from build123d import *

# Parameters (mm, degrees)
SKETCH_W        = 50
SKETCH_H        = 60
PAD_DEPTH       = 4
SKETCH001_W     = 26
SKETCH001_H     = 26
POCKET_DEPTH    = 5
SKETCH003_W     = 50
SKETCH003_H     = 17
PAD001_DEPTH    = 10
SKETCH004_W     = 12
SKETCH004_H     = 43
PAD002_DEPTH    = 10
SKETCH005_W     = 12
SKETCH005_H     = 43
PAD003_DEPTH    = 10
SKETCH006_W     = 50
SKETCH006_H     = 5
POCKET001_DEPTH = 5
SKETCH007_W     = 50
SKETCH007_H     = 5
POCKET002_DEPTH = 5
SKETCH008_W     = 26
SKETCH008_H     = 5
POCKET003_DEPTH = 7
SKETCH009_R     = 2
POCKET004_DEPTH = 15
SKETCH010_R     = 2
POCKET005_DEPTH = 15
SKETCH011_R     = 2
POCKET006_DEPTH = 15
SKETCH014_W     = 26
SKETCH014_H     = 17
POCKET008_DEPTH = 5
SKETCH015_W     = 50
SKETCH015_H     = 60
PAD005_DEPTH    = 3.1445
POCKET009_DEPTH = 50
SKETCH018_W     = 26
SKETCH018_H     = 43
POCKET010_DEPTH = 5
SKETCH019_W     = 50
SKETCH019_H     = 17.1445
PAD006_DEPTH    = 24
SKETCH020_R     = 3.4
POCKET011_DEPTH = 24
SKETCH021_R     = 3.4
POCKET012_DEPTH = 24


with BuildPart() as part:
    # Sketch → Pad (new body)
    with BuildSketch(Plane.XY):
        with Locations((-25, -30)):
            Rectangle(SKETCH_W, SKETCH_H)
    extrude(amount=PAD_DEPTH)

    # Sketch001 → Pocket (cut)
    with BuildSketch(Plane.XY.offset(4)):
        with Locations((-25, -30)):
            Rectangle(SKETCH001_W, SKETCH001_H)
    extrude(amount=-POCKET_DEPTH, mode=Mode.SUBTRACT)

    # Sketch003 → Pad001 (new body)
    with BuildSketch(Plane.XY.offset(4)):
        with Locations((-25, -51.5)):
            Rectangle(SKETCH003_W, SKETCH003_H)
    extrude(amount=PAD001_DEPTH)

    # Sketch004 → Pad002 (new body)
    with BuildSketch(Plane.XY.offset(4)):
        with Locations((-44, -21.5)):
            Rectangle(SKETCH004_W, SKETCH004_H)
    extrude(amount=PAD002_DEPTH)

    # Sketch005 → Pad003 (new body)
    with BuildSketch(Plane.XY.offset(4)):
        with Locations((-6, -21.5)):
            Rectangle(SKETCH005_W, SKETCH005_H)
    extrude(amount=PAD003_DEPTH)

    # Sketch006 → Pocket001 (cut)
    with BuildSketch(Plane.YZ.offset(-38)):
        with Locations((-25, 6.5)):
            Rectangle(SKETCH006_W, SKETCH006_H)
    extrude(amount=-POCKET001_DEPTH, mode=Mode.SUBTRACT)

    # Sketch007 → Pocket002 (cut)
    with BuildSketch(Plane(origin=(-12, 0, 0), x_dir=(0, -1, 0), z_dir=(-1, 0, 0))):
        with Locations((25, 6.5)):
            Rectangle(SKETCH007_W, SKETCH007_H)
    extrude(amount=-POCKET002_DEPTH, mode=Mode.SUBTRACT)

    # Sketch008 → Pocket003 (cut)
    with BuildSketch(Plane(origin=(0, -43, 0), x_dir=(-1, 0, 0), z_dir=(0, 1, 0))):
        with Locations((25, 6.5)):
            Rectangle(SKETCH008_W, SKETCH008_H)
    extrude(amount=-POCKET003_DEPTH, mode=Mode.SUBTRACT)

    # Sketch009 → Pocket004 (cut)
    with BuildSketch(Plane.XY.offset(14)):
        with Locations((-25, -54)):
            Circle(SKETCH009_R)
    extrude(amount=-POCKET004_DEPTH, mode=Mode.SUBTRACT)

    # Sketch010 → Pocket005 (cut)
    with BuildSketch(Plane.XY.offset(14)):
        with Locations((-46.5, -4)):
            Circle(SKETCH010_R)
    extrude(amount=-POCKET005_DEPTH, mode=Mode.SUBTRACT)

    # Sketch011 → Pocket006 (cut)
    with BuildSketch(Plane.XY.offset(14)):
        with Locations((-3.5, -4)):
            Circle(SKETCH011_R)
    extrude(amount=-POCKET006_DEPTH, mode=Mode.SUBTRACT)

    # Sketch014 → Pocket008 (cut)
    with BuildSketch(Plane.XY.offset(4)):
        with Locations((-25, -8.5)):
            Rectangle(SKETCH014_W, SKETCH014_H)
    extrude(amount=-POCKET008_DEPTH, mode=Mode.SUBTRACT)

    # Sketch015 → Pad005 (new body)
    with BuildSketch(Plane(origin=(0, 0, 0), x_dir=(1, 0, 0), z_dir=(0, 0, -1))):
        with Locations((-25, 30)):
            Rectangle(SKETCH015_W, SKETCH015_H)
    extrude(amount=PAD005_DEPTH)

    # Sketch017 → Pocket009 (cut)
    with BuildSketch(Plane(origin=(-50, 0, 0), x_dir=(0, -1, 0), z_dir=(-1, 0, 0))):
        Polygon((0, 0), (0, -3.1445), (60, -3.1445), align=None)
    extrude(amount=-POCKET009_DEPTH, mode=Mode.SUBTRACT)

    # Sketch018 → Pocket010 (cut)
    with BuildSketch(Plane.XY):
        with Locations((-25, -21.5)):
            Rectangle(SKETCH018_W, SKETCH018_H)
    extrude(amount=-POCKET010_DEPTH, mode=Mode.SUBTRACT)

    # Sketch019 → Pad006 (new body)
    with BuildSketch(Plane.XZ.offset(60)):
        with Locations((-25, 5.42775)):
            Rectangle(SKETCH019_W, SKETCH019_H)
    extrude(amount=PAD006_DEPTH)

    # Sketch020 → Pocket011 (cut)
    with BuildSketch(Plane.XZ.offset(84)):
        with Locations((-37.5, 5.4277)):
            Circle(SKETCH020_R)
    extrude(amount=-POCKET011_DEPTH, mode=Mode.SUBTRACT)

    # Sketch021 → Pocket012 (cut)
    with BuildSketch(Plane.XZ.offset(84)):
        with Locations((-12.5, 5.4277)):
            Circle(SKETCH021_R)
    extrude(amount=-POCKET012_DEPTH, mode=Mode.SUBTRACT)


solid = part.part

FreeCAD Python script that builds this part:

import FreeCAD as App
import Part
import Sketcher

V = App.Vector

doc = App.newDocument("Part")
body = doc.addObject("PartDesign::Body", "Body")

sketch1 = body.newObject("Sketcher::SketchObject", "Sketch")
sketch1.AttachmentSupport = (doc.getObject("XY_Plane"), [""])
sketch1.MapMode = "FlatFace"
sketch1.addGeometry(Part.LineSegment(V(-50, 0, 0), V(-50, -60, 0)), False)
sketch1.addGeometry(Part.LineSegment(V(-50, -60, 0), V(0, -60, 0)), False)
sketch1.addGeometry(Part.LineSegment(V(0, -60, 0), V(0, 0, 0)), False)
sketch1.addGeometry(Part.LineSegment(V(0, 0, 0), V(-50, 0, 0)), False)
sketch1.addConstraint(Sketcher.Constraint("Coincident", 0, 2, 1, 1))
sketch1.addConstraint(Sketcher.Constraint("Coincident", 1, 2, 2, 1))
sketch1.addConstraint(Sketcher.Constraint("Coincident", 2, 2, 3, 1))
sketch1.addConstraint(Sketcher.Constraint("Coincident", 3, 2, 0, 1))
sketch1.addConstraint(Sketcher.Constraint("Vertical", 0))
sketch1.addConstraint(Sketcher.Constraint("Horizontal", 1))
sketch1.addConstraint(Sketcher.Constraint("Vertical", 2))
sketch1.addConstraint(Sketcher.Constraint("Horizontal", 3))
sketch1.addConstraint(Sketcher.Constraint("Coincident", 2, 2, -1, 1))
sketch1.addConstraint(Sketcher.Constraint("DistanceX", 1, 1, 1, 2, 50.0))
sketch1.addConstraint(Sketcher.Constraint("DistanceY", 0, 2, 0, 1, 60.0))
pad1 = body.newObject("PartDesign::Pad", "Pad")
pad1.Profile = sketch1
pad1.Length = 4

sketch2 = body.newObject("Sketcher::SketchObject", "Sketch001")
sketch2.AttachmentSupport = (doc.getObject("XY_Plane"), [""])
sketch2.MapMode = "FlatFace"
sketch2.AttachmentOffset = App.Placement(V(0, 0, 4), App.Rotation())
sketch2.addGeometry(Part.LineSegment(V(-38, -17, 0), V(-38, -43, 0)), False)
sketch2.addGeometry(Part.LineSegment(V(-38, -43, 0), V(-12, -43, 0)), False)
sketch2.addGeometry(Part.LineSegment(V(-12, -43, 0), V(-12, -17, 0)), False)
sketch2.addGeometry(Part.LineSegment(V(-12, -17, 0), V(-38, -17, 0)), False)
sketch2.addConstraint(Sketcher.Constraint("Coincident", 0, 2, 1, 1))
sketch2.addConstraint(Sketcher.Constraint("Coincident", 1, 2, 2, 1))
sketch2.addConstraint(Sketcher.Constraint("Coincident", 2, 2, 3, 1))
sketch2.addConstraint(Sketcher.Constraint("Coincident", 3, 2, 0, 1))
sketch2.addConstraint(Sketcher.Constraint("Vertical", 0))
sketch2.addConstraint(Sketcher.Constraint("Horizontal", 1))
sketch2.addConstraint(Sketcher.Constraint("Vertical", 2))
sketch2.addConstraint(Sketcher.Constraint("Horizontal", 3))
sketch2.addConstraint(Sketcher.Constraint("Equal", 3, 0))
sketch2.addConstraint(Sketcher.Constraint("DistanceX", 1, 1, 1, 2, 26.0))
sketch2.addConstraint(Sketcher.Constraint("DistanceX", 0, 2, -1, 1, 38.0))
sketch2.addConstraint(Sketcher.Constraint("DistanceY", 0, 2, -1, 1, 43.0))
pocket1 = body.newObject("PartDesign::Pocket", "Pocket")
pocket1.Profile = sketch2
pocket1.Length = 5

sketch3 = body.newObject("Sketcher::SketchObject", "Sketch002")
sketch3.AttachmentSupport = (doc.getObject("XY_Plane"), [""])
sketch3.MapMode = "FlatFace"
sketch3.AttachmentOffset = App.Placement(V(0, 0, 4), App.Rotation())
sketch3.addGeometry(Part.LineSegment(V(-50, -43, 0), V(-50, -60, 0)), False)
sketch3.addGeometry(Part.LineSegment(V(-50, -60, 0), V(0, -60, 0)), False)
sketch3.addGeometry(Part.LineSegment(V(0, -60, 0), V(0, -43, 0)), False)
sketch3.addGeometry(Part.LineSegment(V(0, -43, 0), V(-50, -43, 0)), False)
sketch3.addConstraint(Sketcher.Constraint("Coincident", 0, 2, 1, 1))
sketch3.addConstraint(Sketcher.Constraint("Coincident", 1, 2, 2, 1))
sketch3.addConstraint(Sketcher.Constraint("Coincident", 2, 2, 3, 1))
sketch3.addConstraint(Sketcher.Constraint("Coincident", 3, 2, 0, 1))
sketch3.addConstraint(Sketcher.Constraint("Vertical", 0))
sketch3.addConstraint(Sketcher.Constraint("Horizontal", 1))
sketch3.addConstraint(Sketcher.Constraint("Vertical", 2))
sketch3.addConstraint(Sketcher.Constraint("Horizontal", 3))
sketch3.addConstraint(Sketcher.Constraint("PointOnObject", 1, 2, -2))
sketch3.addConstraint(Sketcher.Constraint("DistanceX", 1, 1, 1, 2, 50.0))
sketch3.addConstraint(Sketcher.Constraint("DistanceY", 0, 2, 0, 1, 17.0))
sketch3.addConstraint(Sketcher.Constraint("DistanceY", 0, 2, -1, 1, 60.0))
pad2 = body.newObject("PartDesign::Pad", "Pad001")
pad2.Profile = sketch3
pad2.Length = 10

sketch4 = body.newObject("Sketcher::SketchObject", "Sketch003")
sketch4.AttachmentSupport = (doc.getObject("XY_Plane"), [""])
sketch4.MapMode = "FlatFace"
sketch4.AttachmentOffset = App.Placement(V(0, 0, 4), App.Rotation())
sketch4.addGeometry(Part.LineSegment(V(-50, 0, 0), V(-50, -43, 0)), False)
sketch4.addGeometry(Part.LineSegment(V(-50, -43, 0), V(-38, -43, 0)), False)
sketch4.addGeometry(Part.LineSegment(V(-38, -43, 0), V(-38, 0, 0)), False)
sketch4.addGeometry(Part.LineSegment(V(-38, 0, 0), V(-50, 0, 0)), False)
sketch4.addConstraint(Sketcher.Constraint("Coincident", 0, 2, 1, 1))
sketch4.addConstraint(Sketcher.Constraint("Coincident", 1, 2, 2, 1))
sketch4.addConstraint(Sketcher.Constraint("Coincident", 2, 2, 3, 1))
sketch4.addConstraint(Sketcher.Constraint("Coincident", 3, 2, 0, 1))
sketch4.addConstraint(Sketcher.Constraint("Vertical", 0))
sketch4.addConstraint(Sketcher.Constraint("Horizontal", 1))
sketch4.addConstraint(Sketcher.Constraint("Vertical", 2))
sketch4.addConstraint(Sketcher.Constraint("Horizontal", 3))
sketch4.addConstraint(Sketcher.Constraint("PointOnObject", 2, 2, -1))
sketch4.addConstraint(Sketcher.Constraint("DistanceX", 1, 1, 1, 2, 12.0))
sketch4.addConstraint(Sketcher.Constraint("DistanceY", 0, 2, 0, 1, 43.0))
sketch4.addConstraint(Sketcher.Constraint("DistanceX", 0, 2, -1, 1, 50.0))
pad3 = body.newObject("PartDesign::Pad", "Pad002")
pad3.Profile = sketch4
pad3.Length = 10

sketch5 = body.newObject("Sketcher::SketchObject", "Sketch004")
sketch5.AttachmentSupport = (doc.getObject("XY_Plane"), [""])
sketch5.MapMode = "FlatFace"
sketch5.AttachmentOffset = App.Placement(V(0, 0, 4), App.Rotation())
sketch5.addGeometry(Part.LineSegment(V(-12, 0, 0), V(-12, -43, 0)), False)
sketch5.addGeometry(Part.LineSegment(V(-12, -43, 0), V(0, -43, 0)), False)
sketch5.addGeometry(Part.LineSegment(V(0, -43, 0), V(0, 0, 0)), False)
sketch5.addGeometry(Part.LineSegment(V(0, 0, 0), V(-12, 0, 0)), False)
sketch5.addConstraint(Sketcher.Constraint("Coincident", 0, 2, 1, 1))
sketch5.addConstraint(Sketcher.Constraint("Coincident", 1, 2, 2, 1))
sketch5.addConstraint(Sketcher.Constraint("Coincident", 2, 2, 3, 1))
sketch5.addConstraint(Sketcher.Constraint("Coincident", 3, 2, 0, 1))
sketch5.addConstraint(Sketcher.Constraint("Vertical", 0))
sketch5.addConstraint(Sketcher.Constraint("Horizontal", 1))
sketch5.addConstraint(Sketcher.Constraint("Vertical", 2))
sketch5.addConstraint(Sketcher.Constraint("Horizontal", 3))
sketch5.addConstraint(Sketcher.Constraint("Coincident", 2, 2, -1, 1))
sketch5.addConstraint(Sketcher.Constraint("DistanceX", 1, 1, 1, 2, 12.0))
sketch5.addConstraint(Sketcher.Constraint("DistanceY", 0, 2, 0, 1, 43.0))
pad4 = body.newObject("PartDesign::Pad", "Pad003")
pad4.Profile = sketch5
pad4.Length = 10

sketch6 = body.newObject("Sketcher::SketchObject", "Sketch005")
sketch6.AttachmentSupport = (doc.getObject("YZ_Plane"), [""])
sketch6.MapMode = "FlatFace"
sketch6.AttachmentOffset = App.Placement(V(0, 0, -38), App.Rotation())
sketch6.addGeometry(Part.LineSegment(V(-50, 9, 0), V(-50, 4, 0)), False)
sketch6.addGeometry(Part.LineSegment(V(-50, 4, 0), V(0, 4, 0)), False)
sketch6.addGeometry(Part.LineSegment(V(0, 4, 0), V(0, 9, 0)), False)
sketch6.addGeometry(Part.LineSegment(V(0, 9, 0), V(-50, 9, 0)), False)
sketch6.addConstraint(Sketcher.Constraint("Coincident", 0, 2, 1, 1))
sketch6.addConstraint(Sketcher.Constraint("Coincident", 1, 2, 2, 1))
sketch6.addConstraint(Sketcher.Constraint("Coincident", 2, 2, 3, 1))
sketch6.addConstraint(Sketcher.Constraint("Coincident", 3, 2, 0, 1))
sketch6.addConstraint(Sketcher.Constraint("Vertical", 0))
sketch6.addConstraint(Sketcher.Constraint("Horizontal", 1))
sketch6.addConstraint(Sketcher.Constraint("Vertical", 2))
sketch6.addConstraint(Sketcher.Constraint("Horizontal", 3))
sketch6.addConstraint(Sketcher.Constraint("PointOnObject", 1, 2, -2))
sketch6.addConstraint(Sketcher.Constraint("DistanceX", 1, 1, 1, 2, 50.0))
sketch6.addConstraint(Sketcher.Constraint("DistanceY", 0, 2, 0, 1, 5.0))
sketch6.addConstraint(Sketcher.Constraint("DistanceY", -1, 1, 0, 2, 4.0))
pocket2 = body.newObject("PartDesign::Pocket", "Pocket001")
pocket2.Profile = sketch6
pocket2.Length = 5

sketch7 = body.newObject("Sketcher::SketchObject", "Sketch006")
sketch7.AttachmentSupport = (doc.getObject("YZ_Plane"), [""])
sketch7.MapMode = "FlatFace"
sketch7.AttachmentOffset = App.Placement(V(0, 0, -12), App.Rotation())
sketch7.addGeometry(Part.LineSegment(V(0, 9, 0), V(0, 4, 0)), False)
sketch7.addGeometry(Part.LineSegment(V(0, 4, 0), V(-50, 4, 0)), False)
sketch7.addGeometry(Part.LineSegment(V(-50, 4, 0), V(-50, 9, 0)), False)
sketch7.addGeometry(Part.LineSegment(V(-50, 9, 0), V(0, 9, 0)), False)
sketch7.addConstraint(Sketcher.Constraint("Coincident", 0, 2, 1, 1))
sketch7.addConstraint(Sketcher.Constraint("Coincident", 1, 2, 2, 1))
sketch7.addConstraint(Sketcher.Constraint("Coincident", 2, 2, 3, 1))
sketch7.addConstraint(Sketcher.Constraint("Coincident", 3, 2, 0, 1))
sketch7.addConstraint(Sketcher.Constraint("Vertical", 0))
sketch7.addConstraint(Sketcher.Constraint("Horizontal", 1))
sketch7.addConstraint(Sketcher.Constraint("Vertical", 2))
sketch7.addConstraint(Sketcher.Constraint("Horizontal", 3))
sketch7.addConstraint(Sketcher.Constraint("PointOnObject", 0, 2, -2))
sketch7.addConstraint(Sketcher.Constraint("DistanceX", 1, 2, 1, 1, 50.0))
sketch7.addConstraint(Sketcher.Constraint("DistanceY", 0, 2, 0, 1, 5.0))
sketch7.addConstraint(Sketcher.Constraint("DistanceY", -1, 1, 0, 2, 4.0))
pocket3 = body.newObject("PartDesign::Pocket", "Pocket002")
pocket3.Profile = sketch7
pocket3.Length = 5
pocket3.Reversed = True

sketch8 = body.newObject("Sketcher::SketchObject", "Sketch007")
sketch8.AttachmentSupport = (doc.getObject("XZ_Plane"), [""])
sketch8.MapMode = "FlatFace"
sketch8.AttachmentOffset = App.Placement(V(0, 0, 43), App.Rotation())
sketch8.addGeometry(Part.LineSegment(V(-12, 9, 0), V(-12, 4, 0)), False)
sketch8.addGeometry(Part.LineSegment(V(-12, 4, 0), V(-38, 4, 0)), False)
sketch8.addGeometry(Part.LineSegment(V(-38, 4, 0), V(-38, 9, 0)), False)
sketch8.addGeometry(Part.LineSegment(V(-38, 9, 0), V(-12, 9, 0)), False)
sketch8.addConstraint(Sketcher.Constraint("Coincident", 0, 2, 1, 1))
sketch8.addConstraint(Sketcher.Constraint("Coincident", 1, 2, 2, 1))
sketch8.addConstraint(Sketcher.Constraint("Coincident", 2, 2, 3, 1))
sketch8.addConstraint(Sketcher.Constraint("Coincident", 3, 2, 0, 1))
sketch8.addConstraint(Sketcher.Constraint("Vertical", 0))
sketch8.addConstraint(Sketcher.Constraint("Horizontal", 1))
sketch8.addConstraint(Sketcher.Constraint("Vertical", 2))
sketch8.addConstraint(Sketcher.Constraint("Horizontal", 3))
sketch8.addConstraint(Sketcher.Constraint("DistanceX", 1, 2, 1, 1, 26.0))
sketch8.addConstraint(Sketcher.Constraint("DistanceY", 0, 2, 0, 1, 5.0))
sketch8.addConstraint(Sketcher.Constraint("DistanceX", 0, 2, -1, 1, 12.0))
sketch8.addConstraint(Sketcher.Constraint("DistanceY", -1, 1, 0, 2, 4.0))
pocket4 = body.newObject("PartDesign::Pocket", "Pocket003")
pocket4.Profile = sketch8
pocket4.Length = 7
pocket4.Reversed = True

sketch9 = body.newObject("Sketcher::SketchObject", "Sketch008")
sketch9.AttachmentSupport = (doc.getObject("XY_Plane"), [""])
sketch9.MapMode = "FlatFace"
sketch9.AttachmentOffset = App.Placement(V(0, 0, 14), App.Rotation())
sketch9.addGeometry(Part.Circle(V(-25, -54, 0), V(0, 0, 1), 2), False)
sketch9.addConstraint(Sketcher.Constraint("Diameter", 0, 4.0))
sketch9.addConstraint(Sketcher.Constraint("DistanceX", 0, 3, -1, 1, 25.0))
sketch9.addConstraint(Sketcher.Constraint("DistanceY", 0, 3, -1, 1, 54.0))
pocket5 = body.newObject("PartDesign::Pocket", "Pocket004")
pocket5.Profile = sketch9
pocket5.Length = 15

sketch10 = body.newObject("Sketcher::SketchObject", "Sketch009")
sketch10.AttachmentSupport = (doc.getObject("XY_Plane"), [""])
sketch10.MapMode = "FlatFace"
sketch10.AttachmentOffset = App.Placement(V(0, 0, 14), App.Rotation())
sketch10.addGeometry(Part.Circle(V(-46.5, -4, 0), V(0, 0, 1), 2), False)
sketch10.addConstraint(Sketcher.Constraint("Diameter", 0, 4.0))
sketch10.addConstraint(Sketcher.Constraint("DistanceY", 0, 3, -1, 1, 4.0))
sketch10.addConstraint(Sketcher.Constraint("DistanceX", 0, 3, -1, 1, 46.5))
pocket6 = body.newObject("PartDesign::Pocket", "Pocket005")
pocket6.Profile = sketch10
pocket6.Length = 15

sketch11 = body.newObject("Sketcher::SketchObject", "Sketch010")
sketch11.AttachmentSupport = (doc.getObject("XY_Plane"), [""])
sketch11.MapMode = "FlatFace"
sketch11.AttachmentOffset = App.Placement(V(0, 0, 14), App.Rotation())
sketch11.addGeometry(Part.Circle(V(-3.5, -4, 0), V(0, 0, 1), 2), False)
sketch11.addConstraint(Sketcher.Constraint("Diameter", 0, 4.0))
sketch11.addConstraint(Sketcher.Constraint("DistanceY", 0, 3, -1, 1, 4.0))
sketch11.addConstraint(Sketcher.Constraint("DistanceX", 0, 3, -1, 1, 3.5))
pocket7 = body.newObject("PartDesign::Pocket", "Pocket006")
pocket7.Profile = sketch11
pocket7.Length = 15

sketch12 = body.newObject("Sketcher::SketchObject", "Sketch011")
sketch12.AttachmentSupport = (doc.getObject("XY_Plane"), [""])
sketch12.MapMode = "FlatFace"
sketch12.AttachmentOffset = App.Placement(V(0, 0, 4), App.Rotation())
sketch12.addGeometry(Part.LineSegment(V(-38, 0, 0), V(-38, -17, 0)), False)
sketch12.addGeometry(Part.LineSegment(V(-38, -17, 0), V(-12, -17, 0)), False)
sketch12.addGeometry(Part.LineSegment(V(-12, -17, 0), V(-12, 0, 0)), False)
sketch12.addGeometry(Part.LineSegment(V(-12, 0, 0), V(-38, 0, 0)), False)
sketch12.addConstraint(Sketcher.Constraint("Coincident", 0, 2, 1, 1))
sketch12.addConstraint(Sketcher.Constraint("Coincident", 1, 2, 2, 1))
sketch12.addConstraint(Sketcher.Constraint("Coincident", 2, 2, 3, 1))
sketch12.addConstraint(Sketcher.Constraint("Coincident", 3, 2, 0, 1))
sketch12.addConstraint(Sketcher.Constraint("Vertical", 0))
sketch12.addConstraint(Sketcher.Constraint("Horizontal", 1))
sketch12.addConstraint(Sketcher.Constraint("Vertical", 2))
sketch12.addConstraint(Sketcher.Constraint("Horizontal", 3))
sketch12.addConstraint(Sketcher.Constraint("PointOnObject", 2, 2, -1))
sketch12.addConstraint(Sketcher.Constraint("DistanceX", 1, 1, 1, 2, 26.0))
sketch12.addConstraint(Sketcher.Constraint("DistanceY", 0, 2, 0, 1, 17.0))
sketch12.addConstraint(Sketcher.Constraint("DistanceX", 0, 2, -1, 1, 38.0))
pocket8 = body.newObject("PartDesign::Pocket", "Pocket007")
pocket8.Profile = sketch12
pocket8.Length = 5

sketch13 = body.newObject("Sketcher::SketchObject", "Sketch012")
sketch13.AttachmentSupport = (doc.getObject("XY_Plane"), [""])
sketch13.MapMode = "FlatFace"
sketch13.addGeometry(Part.LineSegment(V(-50, -60, 0), V(-50, 0, 0)), False)
sketch13.addGeometry(Part.LineSegment(V(-50, 0, 0), V(0, 0, 0)), False)
sketch13.addGeometry(Part.LineSegment(V(0, 0, 0), V(0, -60, 0)), False)
sketch13.addGeometry(Part.LineSegment(V(0, -60, 0), V(-50, -60, 0)), False)
sketch13.addConstraint(Sketcher.Constraint("Coincident", 0, 2, 1, 1))
sketch13.addConstraint(Sketcher.Constraint("Coincident", 1, 2, 2, 1))
sketch13.addConstraint(Sketcher.Constraint("Coincident", 2, 2, 3, 1))
sketch13.addConstraint(Sketcher.Constraint("Coincident", 3, 2, 0, 1))
sketch13.addConstraint(Sketcher.Constraint("Vertical", 0))
sketch13.addConstraint(Sketcher.Constraint("Horizontal", 1))
sketch13.addConstraint(Sketcher.Constraint("Vertical", 2))
sketch13.addConstraint(Sketcher.Constraint("Horizontal", 3))
sketch13.addConstraint(Sketcher.Constraint("Coincident", 1, 2, -1, 1))
sketch13.addConstraint(Sketcher.Constraint("DistanceX", 1, 1, 1, 2, 50.0))
sketch13.addConstraint(Sketcher.Constraint("DistanceY", 0, 1, 0, 2, 60.0))
pad5 = body.newObject("PartDesign::Pad", "Pad004")
pad5.Profile = sketch13
pad5.Length = 3.1445
pad5.Reversed = True

sketch14 = body.newObject("Sketcher::SketchObject", "Sketch013")
sketch14.AttachmentSupport = (doc.getObject("YZ_Plane"), [""])
sketch14.MapMode = "FlatFace"
sketch14.AttachmentOffset = App.Placement(V(0, 0, -50), App.Rotation())
sketch14.addGeometry(Part.LineSegment(V(0, 0, 0), V(0, -3.1, 0)), False)
sketch14.addGeometry(Part.LineSegment(V(0, -3.1, 0), V(-60, -3.1, 0)), False)
sketch14.addGeometry(Part.LineSegment(V(-60, -3.1, 0), V(0, 0, 0)), False)
sketch14.addConstraint(Sketcher.Constraint("Coincident", 0, 2, 1, 1))
sketch14.addConstraint(Sketcher.Constraint("Coincident", 1, 2, 2, 1))
sketch14.addConstraint(Sketcher.Constraint("Coincident", 2, 2, 0, 1))
sketch14.addConstraint(Sketcher.Constraint("Vertical", 0))
sketch14.addConstraint(Sketcher.Constraint("Horizontal", 1))
sketch14.addConstraint(Sketcher.Constraint("Coincident", 2, 2, -1, 1))
sketch14.addConstraint(Sketcher.Constraint("DistanceX", 1, 2, 1, 1, 60.0))
sketch14.addConstraint(Sketcher.Constraint("DistanceY", 0, 2, 0, 1, 3.1445))
pocket9 = body.newObject("PartDesign::Pocket", "Pocket008")
pocket9.Profile = sketch14
pocket9.Length = 50
pocket9.Reversed = True

sketch15 = body.newObject("Sketcher::SketchObject", "Sketch014")
sketch15.AttachmentSupport = (doc.getObject("XY_Plane"), [""])
sketch15.MapMode = "FlatFace"
sketch15.addGeometry(Part.LineSegment(V(-38, 0, 0), V(-38, -43, 0)), False)
sketch15.addGeometry(Part.LineSegment(V(-38, -43, 0), V(-12, -43, 0)), False)
sketch15.addGeometry(Part.LineSegment(V(-12, -43, 0), V(-12, 0, 0)), False)
sketch15.addGeometry(Part.LineSegment(V(-12, 0, 0), V(-38, 0, 0)), False)
sketch15.addConstraint(Sketcher.Constraint("Coincident", 0, 2, 1, 1))
sketch15.addConstraint(Sketcher.Constraint("Coincident", 1, 2, 2, 1))
sketch15.addConstraint(Sketcher.Constraint("Coincident", 2, 2, 3, 1))
sketch15.addConstraint(Sketcher.Constraint("Coincident", 3, 2, 0, 1))
sketch15.addConstraint(Sketcher.Constraint("Vertical", 0))
sketch15.addConstraint(Sketcher.Constraint("Horizontal", 1))
sketch15.addConstraint(Sketcher.Constraint("Vertical", 2))
sketch15.addConstraint(Sketcher.Constraint("Horizontal", 3))
sketch15.addConstraint(Sketcher.Constraint("PointOnObject", 2, 2, -1))
sketch15.addConstraint(Sketcher.Constraint("DistanceX", 1, 1, 1, 2, 26.0))
sketch15.addConstraint(Sketcher.Constraint("DistanceY", 0, 2, 0, 1, 43.0))
sketch15.addConstraint(Sketcher.Constraint("DistanceX", 0, 2, -1, 1, 38.0))
pocket10 = body.newObject("PartDesign::Pocket", "Pocket009")
pocket10.Profile = sketch15
pocket10.Length = 5

sketch16 = body.newObject("Sketcher::SketchObject", "Sketch015")
sketch16.AttachmentSupport = (doc.getObject("XZ_Plane"), [""])
sketch16.MapMode = "FlatFace"
sketch16.AttachmentOffset = App.Placement(V(0, 0, 60), App.Rotation())
sketch16.addGeometry(Part.LineSegment(V(-50, 14, 0), V(-50, -3, 0)), False)
sketch16.addGeometry(Part.LineSegment(V(-50, -3, 0), V(0, -3, 0)), False)
sketch16.addGeometry(Part.LineSegment(V(0, -3, 0), V(0, 14, 0)), False)
sketch16.addGeometry(Part.LineSegment(V(0, 14, 0), V(-50, 14, 0)), False)
sketch16.addConstraint(Sketcher.Constraint("Coincident", 0, 2, 1, 1))
sketch16.addConstraint(Sketcher.Constraint("Coincident", 1, 2, 2, 1))
sketch16.addConstraint(Sketcher.Constraint("Coincident", 2, 2, 3, 1))
sketch16.addConstraint(Sketcher.Constraint("Coincident", 3, 2, 0, 1))
sketch16.addConstraint(Sketcher.Constraint("Vertical", 0))
sketch16.addConstraint(Sketcher.Constraint("Horizontal", 1))
sketch16.addConstraint(Sketcher.Constraint("Vertical", 2))
sketch16.addConstraint(Sketcher.Constraint("Horizontal", 3))
sketch16.addConstraint(Sketcher.Constraint("PointOnObject", 1, 2, -2))
sketch16.addConstraint(Sketcher.Constraint("DistanceX", 1, 1, 1, 2, 50.0))
sketch16.addConstraint(Sketcher.Constraint("DistanceY", -1, 1, 2, 2, 14.0))
sketch16.addConstraint(Sketcher.Constraint("DistanceY", 0, 2, 0, 1, 17.1445))
pad6 = body.newObject("PartDesign::Pad", "Pad005")
pad6.Profile = sketch16
pad6.Length = 24

sketch17 = body.newObject("Sketcher::SketchObject", "Sketch016")
sketch17.AttachmentSupport = (doc.getObject("XZ_Plane"), [""])
sketch17.MapMode = "FlatFace"
sketch17.AttachmentOffset = App.Placement(V(0, 0, 84), App.Rotation())
sketch17.addGeometry(Part.Circle(V(-37.5, 5.4, 0), V(0, 0, 1), 3.4), False)
sketch17.addConstraint(Sketcher.Constraint("Diameter", 0, 6.8))
sketch17.addConstraint(Sketcher.Constraint("DistanceX", 0, 3, -1, 1, 37.5))
sketch17.addConstraint(Sketcher.Constraint("DistanceY", -1, 1, 0, 3, 5.4277))
pocket11 = body.newObject("PartDesign::Pocket", "Pocket010")
pocket11.Profile = sketch17
pocket11.Length = 24

sketch18 = body.newObject("Sketcher::SketchObject", "Sketch017")
sketch18.AttachmentSupport = (doc.getObject("XZ_Plane"), [""])
sketch18.MapMode = "FlatFace"
sketch18.AttachmentOffset = App.Placement(V(0, 0, 84), App.Rotation())
sketch18.addGeometry(Part.Circle(V(-12.5, 5.4, 0), V(0, 0, 1), 3.4), False)
sketch18.addConstraint(Sketcher.Constraint("Diameter", 0, 6.8))
sketch18.addConstraint(Sketcher.Constraint("DistanceX", 0, 3, -1, 1, 12.5))
sketch18.addConstraint(Sketcher.Constraint("DistanceY", -1, 1, 0, 3, 5.4277))
pocket12 = body.newObject("PartDesign::Pocket", "Pocket011")
pocket12.Profile = sketch18
pocket12.Length = 24

doc.recompute()
